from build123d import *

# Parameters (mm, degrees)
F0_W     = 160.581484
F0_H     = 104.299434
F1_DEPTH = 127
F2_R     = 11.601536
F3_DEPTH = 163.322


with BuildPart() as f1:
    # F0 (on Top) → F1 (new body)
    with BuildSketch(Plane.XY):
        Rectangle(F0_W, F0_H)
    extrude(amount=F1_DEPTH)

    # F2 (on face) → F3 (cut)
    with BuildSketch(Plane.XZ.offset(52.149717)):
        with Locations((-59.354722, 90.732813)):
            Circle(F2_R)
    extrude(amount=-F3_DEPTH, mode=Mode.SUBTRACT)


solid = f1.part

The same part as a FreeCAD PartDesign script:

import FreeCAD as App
import Part
import Sketcher

V = App.Vector
Q = App.Units.Quantity

doc = App.newDocument("Part")
body = doc.addObject("PartDesign::Body", "Body")

# Sketch on XY plane
sketch1 = body.newObject("Sketcher::SketchObject", "Sketch")
sketch1.AttachmentSupport = (doc.getObject("XY_Plane"), [""])
sketch1.MapMode = "FlatFace"
sketch1.addGeometry([
    Part.LineSegment(V(-80, 52, 0), V(-80, -52, 0)),
    Part.LineSegment(V(-80, -52, 0), V(80, -52, 0)),
    Part.LineSegment(V(80, -52, 0), V(80, 52, 0)),
    Part.LineSegment(V(80, 52, 0), V(-80, 52, 0)),
], False)
sketch1.addConstraint([
    Sketcher.Constraint("Coincident", 0, 2, 1, 1),
    Sketcher.Constraint("Coincident", 1, 2, 2, 1),
    Sketcher.Constraint("Coincident", 2, 2, 3, 1),
    Sketcher.Constraint("Coincident", 3, 2, 0, 1),
    Sketcher.Constraint("Vertical", 0),
    Sketcher.Constraint("Horizontal", 1),
    Sketcher.Constraint("Vertical", 2),
    Sketcher.Constraint("Horizontal", 3),
    Sketcher.Constraint("Symmetric", 0, 2, 2, 2, -1, 1),
    Sketcher.Constraint("DistanceX", 1, 1, 1, 2, 160.581484),
    Sketcher.Constraint("DistanceY", 0, 2, 0, 1, 104.299434),
])
pad1 = body.newObject("PartDesign::Pad", "Pad")
pad1.Profile = sketch1
pad1.Length = Q("5 in")

# Sketch on XZ plane
sketch2 = body.newObject("Sketcher::SketchObject", "Sketch001")
sketch2.AttachmentSupport = (doc.getObject("XZ_Plane"), [""])
sketch2.MapMode = "FlatFace"
sketch2.AttachmentOffset = App.Placement(V(0, 0, 52.149717), App.Rotation())
sketch2.addGeometry(Part.Circle(V(-59, 91, 0), V(0, 0, 1), 12), False)
sketch2.addConstraint([
    Sketcher.Constraint("Diameter", 0, 23.203072),
    Sketcher.Constraint("DistanceX", 0, 3, -1, 1, Q("2.3368001 in")),
    Sketcher.Constraint("DistanceY", -1, 1, 0, 3, 90.732813),
])
pocket1 = body.newObject("PartDesign::Pocket", "Pocket")
pocket1.Profile = sketch2
pocket1.Length = Q("6.43 in")

doc.recompute()
